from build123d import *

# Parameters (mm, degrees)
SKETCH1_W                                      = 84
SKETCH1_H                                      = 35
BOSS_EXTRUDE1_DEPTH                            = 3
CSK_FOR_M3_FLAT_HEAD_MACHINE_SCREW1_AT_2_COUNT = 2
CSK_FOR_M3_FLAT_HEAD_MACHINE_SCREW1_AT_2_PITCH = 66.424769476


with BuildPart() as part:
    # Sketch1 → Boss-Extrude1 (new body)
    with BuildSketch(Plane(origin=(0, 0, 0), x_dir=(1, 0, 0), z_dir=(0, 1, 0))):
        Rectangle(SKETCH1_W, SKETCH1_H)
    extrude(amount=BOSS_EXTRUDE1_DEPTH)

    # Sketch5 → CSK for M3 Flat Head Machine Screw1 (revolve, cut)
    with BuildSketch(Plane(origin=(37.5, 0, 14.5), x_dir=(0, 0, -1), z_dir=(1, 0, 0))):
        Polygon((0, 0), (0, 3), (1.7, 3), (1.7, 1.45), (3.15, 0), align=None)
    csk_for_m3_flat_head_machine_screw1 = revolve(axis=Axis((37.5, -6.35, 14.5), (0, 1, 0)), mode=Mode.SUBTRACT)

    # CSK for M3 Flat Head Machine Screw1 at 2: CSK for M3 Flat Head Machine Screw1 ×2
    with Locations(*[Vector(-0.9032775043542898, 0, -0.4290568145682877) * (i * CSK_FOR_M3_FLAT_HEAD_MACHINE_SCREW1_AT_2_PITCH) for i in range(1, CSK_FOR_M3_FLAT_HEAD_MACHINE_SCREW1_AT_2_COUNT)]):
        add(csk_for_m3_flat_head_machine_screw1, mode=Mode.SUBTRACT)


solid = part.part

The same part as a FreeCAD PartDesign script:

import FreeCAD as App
import Part
import Sketcher
from FreeCAD import Vector
Q = App.Units.Quantity

doc = App.newDocument("Part")
body = doc.addObject("PartDesign::Body", "Body")

sketch1 = body.newObject("Sketcher::SketchObject", "Sketch")
sketch1.AttachmentSupport = (doc.getObject("XZ_Plane"), [""])
sketch1.MapMode = "FlatFace"
sketch1.addGeometry([
    Part.LineSegment(Vector(-42, -17.5, 0), Vector(-42, 17.5, 0)),
    Part.LineSegment(Vector(-42, 17.5, 0), Vector(42, 17.5, 0)),
    Part.LineSegment(Vector(42, 17.5, 0), Vector(42, -17.5, 0)),
    Part.LineSegment(Vector(42, -17.5, 0), Vector(-42, -17.5, 0)),
], False)
sketch1.addConstraint([
    Sketcher.Constraint("Coincident", 0, 2, 1, 1),
    Sketcher.Constraint("Coincident", 1, 2, 2, 1),
    Sketcher.Constraint("Coincident", 2, 2, 3, 1),
    Sketcher.Constraint("Coincident", 3, 2, 0, 1),
    Sketcher.Constraint("Vertical", 0),
    Sketcher.Constraint("Horizontal", 1),
    Sketcher.Constraint("Vertical", 2),
    Sketcher.Constraint("Horizontal", 3),
    Sketcher.Constraint("Symmetric", 0, 2, 2, 2, -1, 1),
    Sketcher.Constraint("DistanceX", 1, 1, 1, 2, 84.0),
    Sketcher.Constraint("DistanceY", 0, 1, 0, 2, 35.0),
])
pad1 = body.newObject("PartDesign::Pad", "Pad")
pad1.Profile = sketch1
pad1.Length = 3
pad1.Reversed = True

sketch2 = body.newObject("Sketcher::SketchObject", "Sketch001")
sketch2.AttachmentSupport = (doc.getObject("YZ_Plane"), [""])
sketch2.MapMode = "FlatFace"
sketch2.AttachmentOffset = App.Placement(Vector(0, 0, 37.5), App.Rotation())
sketch2.addGeometry([
    Part.LineSegment(Vector(3, 14.5, 0), Vector(0, 14.5, 0)),
    Part.LineSegment(Vector(0, 14.5, 0), Vector(0, 11.35, 0)),
    Part.LineSegment(Vector(0, 11.35, 0), Vector(1.45, 12.8, 0)),
    Part.LineSegment(Vector(1.45, 12.8, 0), Vector(3, 12.8, 0)),
    Part.LineSegment(Vector(3, 12.8, 0), Vector(3, 14.5, 0)),
], False)
sketch2.addGeometry(Part.LineSegment(Vector(0, 14.5, 0), Vector(3, 14.5, 0)), True)
sketch2.addConstraint([
    Sketcher.Constraint("Coincident", 0, 2, 1, 1),
    Sketcher.Constraint("Coincident", 1, 2, 2, 1),
    Sketcher.Constraint("Coincident", 2, 2, 3, 1),
    Sketcher.Constraint("Coincident", 3, 2, 4, 1),
    Sketcher.Constraint("Coincident", 4, 2, 0, 1),
    Sketcher.Constraint("Horizontal", 0),
    Sketcher.Constraint("Vertical", 1),
    Sketcher.Constraint("Horizontal", 3),
    Sketcher.Constraint("Vertical", 4),
    Sketcher.Constraint("Horizontal", 5),
    Sketcher.Constraint("Coincident", 5, 1, 0, 2),
    Sketcher.Constraint("PointOnObject", 0, 2, -2),
    Sketcher.Constraint("Vertical", 3, 2, 5, 2),
    Sketcher.Constraint("DistanceX", 0, 2, 0, 1, 3.0),
    Sketcher.Constraint("Angle", 2, Q("45 deg")),
    Sketcher.Constraint("DistanceY", 4, 1, 4, 2, 1.7),
    Sketcher.Constraint("DistanceX", 3, 1, 3, 2, 1.55),
    Sketcher.Constraint("DistanceY", -1, 1, 0, 2, 14.5),
])
groove = body.newObject("PartDesign::Groove", "Groove")
groove.Profile = sketch2
groove.ReferenceAxis = (sketch2, ["Axis0"])
groove.Angle = 360
doc.recompute()

datumline = body.newObject("PartDesign::Line", "DatumLine")
datumline.Placement = App.Placement(Vector(0, 0, 0), App.Rotation(Vector(0, 0, 1), Vector(-0.903277504, 0, -0.429056815)))
linearpattern = body.newObject("PartDesign::LinearPattern", "LinearPattern")
linearpattern.Originals = [groove]
linearpattern.Direction = (datumline, [""])
linearpattern.Mode = "offset"
linearpattern.Offset = 66.424769
linearpattern.Occurrences = 2
body.Tip = linearpattern

doc.recompute()
